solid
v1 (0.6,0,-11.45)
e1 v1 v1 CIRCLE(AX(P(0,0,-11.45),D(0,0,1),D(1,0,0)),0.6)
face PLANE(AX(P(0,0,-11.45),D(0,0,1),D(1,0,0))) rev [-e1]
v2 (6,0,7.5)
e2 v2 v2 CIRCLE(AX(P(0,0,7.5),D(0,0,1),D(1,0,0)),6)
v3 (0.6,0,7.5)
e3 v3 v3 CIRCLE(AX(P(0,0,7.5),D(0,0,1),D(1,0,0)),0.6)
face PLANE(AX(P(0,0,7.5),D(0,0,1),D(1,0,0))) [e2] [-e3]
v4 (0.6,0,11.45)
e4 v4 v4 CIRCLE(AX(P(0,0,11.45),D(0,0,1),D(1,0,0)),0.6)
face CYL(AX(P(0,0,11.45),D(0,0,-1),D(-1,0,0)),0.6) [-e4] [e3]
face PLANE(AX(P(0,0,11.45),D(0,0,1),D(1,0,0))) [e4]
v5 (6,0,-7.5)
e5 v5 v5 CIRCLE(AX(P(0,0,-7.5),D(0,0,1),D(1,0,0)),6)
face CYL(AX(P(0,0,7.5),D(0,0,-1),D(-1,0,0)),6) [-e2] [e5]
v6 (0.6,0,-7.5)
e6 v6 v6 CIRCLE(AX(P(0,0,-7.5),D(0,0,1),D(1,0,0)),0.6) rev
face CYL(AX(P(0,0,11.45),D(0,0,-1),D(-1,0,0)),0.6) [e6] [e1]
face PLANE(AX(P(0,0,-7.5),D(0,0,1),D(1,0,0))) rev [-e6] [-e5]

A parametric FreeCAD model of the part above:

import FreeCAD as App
import Part
import Sketcher

V = App.Vector

doc = App.newDocument("Part")
body = doc.addObject("PartDesign::Body", "Body")

# Sketch on XY plane
sketch1 = body.newObject("Sketcher::SketchObject", "Sketch")
sketch1.AttachmentSupport = (doc.getObject("XY_Plane"), [""])
sketch1.MapMode = "FlatFace"
sketch1.addGeometry([
    Part.Circle(V(0, 0, 0), V(0, 0, 1), 6),
    Part.Circle(V(0, 0, 0), V(0, 0, 1), 0.6),
], False)
sketch1.addConstraint([
    Sketcher.Constraint("Coincident", 0, 3, -1, 1),
    Sketcher.Constraint("Coincident", 1, 3, -1, 1),
    Sketcher.Constraint("Diameter", 0, 12.0),
    Sketcher.Constraint("Diameter", 1, 1.2),
])
pad1 = body.newObject("PartDesign::Pad", "Pad")
pad1.Profile = sketch1
pad1.Length = 15
pad1.Midplane = True

# Sketch on XY plane
sketch2 = body.newObject("Sketcher::SketchObject", "Sketch001")
sketch2.AttachmentSupport = (doc.getObject("XY_Plane"), [""])
sketch2.MapMode = "FlatFace"
sketch2.addGeometry(Part.Circle(V(0, 0, 0), V(0, 0, 1), 0.6), False)
sketch2.addConstraint([
    Sketcher.Constraint("Coincident", 0, 3, -1, 1),
    Sketcher.Constraint("Diameter", 0, 1.2),
])
pad2 = body.newObject("PartDesign::Pad", "Pad001")
pad2.Profile = sketch2
pad2.Length = 22.9
pad2.Midplane = True

doc.recompute()
